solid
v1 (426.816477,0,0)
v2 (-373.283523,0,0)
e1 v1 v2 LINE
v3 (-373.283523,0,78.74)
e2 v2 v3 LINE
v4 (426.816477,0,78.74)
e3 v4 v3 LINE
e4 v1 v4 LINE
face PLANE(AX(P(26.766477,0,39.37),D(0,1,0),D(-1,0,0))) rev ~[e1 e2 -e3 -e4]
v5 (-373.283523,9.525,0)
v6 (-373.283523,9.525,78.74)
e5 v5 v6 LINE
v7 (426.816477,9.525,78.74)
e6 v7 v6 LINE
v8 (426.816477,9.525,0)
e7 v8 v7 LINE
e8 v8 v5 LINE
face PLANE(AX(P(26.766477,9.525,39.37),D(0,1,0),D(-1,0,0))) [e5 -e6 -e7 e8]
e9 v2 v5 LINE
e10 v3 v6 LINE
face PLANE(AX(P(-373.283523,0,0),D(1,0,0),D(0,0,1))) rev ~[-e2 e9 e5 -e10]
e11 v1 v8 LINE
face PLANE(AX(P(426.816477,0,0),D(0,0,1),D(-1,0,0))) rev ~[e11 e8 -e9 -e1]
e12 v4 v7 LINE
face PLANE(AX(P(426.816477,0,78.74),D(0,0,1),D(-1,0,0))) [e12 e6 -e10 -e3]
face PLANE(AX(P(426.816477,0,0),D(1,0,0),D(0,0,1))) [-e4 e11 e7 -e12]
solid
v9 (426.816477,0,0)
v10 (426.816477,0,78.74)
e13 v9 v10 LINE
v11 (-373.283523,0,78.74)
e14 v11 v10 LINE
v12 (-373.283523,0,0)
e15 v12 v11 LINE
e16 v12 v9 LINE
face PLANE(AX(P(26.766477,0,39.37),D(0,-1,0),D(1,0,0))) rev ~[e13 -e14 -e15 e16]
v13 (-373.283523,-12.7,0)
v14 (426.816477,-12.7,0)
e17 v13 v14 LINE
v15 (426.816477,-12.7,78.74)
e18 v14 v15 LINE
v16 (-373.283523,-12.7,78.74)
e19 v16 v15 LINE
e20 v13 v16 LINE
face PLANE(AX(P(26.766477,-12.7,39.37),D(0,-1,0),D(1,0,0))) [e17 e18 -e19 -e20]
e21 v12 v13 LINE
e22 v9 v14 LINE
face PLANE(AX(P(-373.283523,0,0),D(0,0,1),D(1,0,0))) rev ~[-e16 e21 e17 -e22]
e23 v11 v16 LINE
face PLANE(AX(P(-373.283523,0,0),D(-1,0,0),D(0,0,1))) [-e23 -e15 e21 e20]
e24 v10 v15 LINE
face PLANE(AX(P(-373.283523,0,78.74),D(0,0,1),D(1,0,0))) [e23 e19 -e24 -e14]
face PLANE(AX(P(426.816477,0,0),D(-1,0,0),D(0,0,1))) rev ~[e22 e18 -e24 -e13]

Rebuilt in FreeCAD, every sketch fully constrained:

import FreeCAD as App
import Part
import Sketcher
from FreeCAD import Vector
Q = App.Units.Quantity

doc = App.newDocument("Part")
params = doc.addObject("Spreadsheet::Sheet", "Params")
for row, (alias, value) in enumerate([
    ("sketch1_width", "31.5 in"),
    ("sketch1_height", "3.1 in"),
    ("pad1_length", "0.5 in"),
    ("sketch2_width", "31.5 in"),
    ("sketch2_height", "3.1 in"),
    ("pad2_length", "0.375 in"),
], start=1):
    params.set(f"A{row}", alias)
    params.set(f"B{row}", "=" + value)
    params.setAlias(f"B{row}", alias)

body = doc.addObject("PartDesign::Body", "Body")

# Sketch on XZ plane
sketch1 = body.newObject("Sketcher::SketchObject", "Sketch")
sketch1.AttachmentSupport = (doc.getObject("XZ_Plane"), [""])
sketch1.MapMode = "FlatFace"
sketch1.addGeometry([
    Part.LineSegment(Vector(-373, 79, 0), Vector(-373, 0, 0)),
    Part.LineSegment(Vector(-373, 0, 0), Vector(427, 0, 0)),
    Part.LineSegment(Vector(427, 0, 0), Vector(427, 79, 0)),
    Part.LineSegment(Vector(427, 79, 0), Vector(-373, 79, 0)),
], False)
sketch1.addConstraint([
    Sketcher.Constraint("Coincident", 0, 2, 1, 1),
    Sketcher.Constraint("Coincident", 1, 2, 2, 1),
    Sketcher.Constraint("Coincident", 2, 2, 3, 1),
    Sketcher.Constraint("Coincident", 3, 2, 0, 1),
    Sketcher.Constraint("Vertical", 0),
    Sketcher.Constraint("Horizontal", 1),
    Sketcher.Constraint("Vertical", 2),
    Sketcher.Constraint("Horizontal", 3),
    Sketcher.Constraint("PointOnObject", 0, 2, -1),
    Sketcher.Constraint("DistanceX", 1, 1, 1, 2, Q("31.5 in")),
    Sketcher.Constraint("DistanceY", 0, 2, 0, 1, Q("3.1 in")),
    Sketcher.Constraint("DistanceX", 0, 2, -1, 1, 373.283523),
])
sketch1.setExpression("Constraints[9]", "Params.sketch1_width")
sketch1.setExpression("Constraints[10]", "Params.sketch1_height")
pad1 = body.newObject("PartDesign::Pad", "Pad")
pad1.Profile = sketch1
pad1.setExpression("Length", "Params.pad1_length")
body2 = doc.addObject("PartDesign::Body", "Body001")

# Sketch on XZ plane
sketch2 = body2.newObject("Sketcher::SketchObject", "Sketch001")
sketch2.AttachmentSupport = (doc.getObject("XZ_Plane001"), [""])
sketch2.MapMode = "FlatFace"
sketch2.addGeometry([
    Part.LineSegment(Vector(427, 79, 0), Vector(427, 0, 0)),
    Part.LineSegment(Vector(427, 0, 0), Vector(-373, 0, 0)),
    Part.LineSegment(Vector(-373, 0, 0), Vector(-373, 79, 0)),
    Part.LineSegment(Vector(-373, 79, 0), Vector(427, 79, 0)),
], False)
sketch2.addConstraint([
    Sketcher.Constraint("Coincident", 0, 2, 1, 1),
    Sketcher.Constraint("Coincident", 1, 2, 2, 1),
    Sketcher.Constraint("Coincident", 2, 2, 3, 1),
    Sketcher.Constraint("Coincident", 3, 2, 0, 1),
    Sketcher.Constraint("Vertical", 0),
    Sketcher.Constraint("Horizontal", 1),
    Sketcher.Constraint("Vertical", 2),
    Sketcher.Constraint("Horizontal", 3),
    Sketcher.Constraint("PointOnObject", 0, 2, -1),
    Sketcher.Constraint("DistanceX", 1, 2, 1, 1, Q("31.5 in")),
    Sketcher.Constraint("DistanceY", 0, 2, 0, 1, Q("3.1 in")),
    Sketcher.Constraint("DistanceX", -1, 1, 0, 2, 426.816477),
])
sketch2.setExpression("Constraints[9]", "Params.sketch2_width")
sketch2.setExpression("Constraints[10]", "Params.sketch2_height")
pad2 = body2.newObject("PartDesign::Pad", "Pad001")
pad2.Profile = sketch2
pad2.setExpression("Length", "Params.pad2_length")
pad2.Reversed = True

doc.recompute()
